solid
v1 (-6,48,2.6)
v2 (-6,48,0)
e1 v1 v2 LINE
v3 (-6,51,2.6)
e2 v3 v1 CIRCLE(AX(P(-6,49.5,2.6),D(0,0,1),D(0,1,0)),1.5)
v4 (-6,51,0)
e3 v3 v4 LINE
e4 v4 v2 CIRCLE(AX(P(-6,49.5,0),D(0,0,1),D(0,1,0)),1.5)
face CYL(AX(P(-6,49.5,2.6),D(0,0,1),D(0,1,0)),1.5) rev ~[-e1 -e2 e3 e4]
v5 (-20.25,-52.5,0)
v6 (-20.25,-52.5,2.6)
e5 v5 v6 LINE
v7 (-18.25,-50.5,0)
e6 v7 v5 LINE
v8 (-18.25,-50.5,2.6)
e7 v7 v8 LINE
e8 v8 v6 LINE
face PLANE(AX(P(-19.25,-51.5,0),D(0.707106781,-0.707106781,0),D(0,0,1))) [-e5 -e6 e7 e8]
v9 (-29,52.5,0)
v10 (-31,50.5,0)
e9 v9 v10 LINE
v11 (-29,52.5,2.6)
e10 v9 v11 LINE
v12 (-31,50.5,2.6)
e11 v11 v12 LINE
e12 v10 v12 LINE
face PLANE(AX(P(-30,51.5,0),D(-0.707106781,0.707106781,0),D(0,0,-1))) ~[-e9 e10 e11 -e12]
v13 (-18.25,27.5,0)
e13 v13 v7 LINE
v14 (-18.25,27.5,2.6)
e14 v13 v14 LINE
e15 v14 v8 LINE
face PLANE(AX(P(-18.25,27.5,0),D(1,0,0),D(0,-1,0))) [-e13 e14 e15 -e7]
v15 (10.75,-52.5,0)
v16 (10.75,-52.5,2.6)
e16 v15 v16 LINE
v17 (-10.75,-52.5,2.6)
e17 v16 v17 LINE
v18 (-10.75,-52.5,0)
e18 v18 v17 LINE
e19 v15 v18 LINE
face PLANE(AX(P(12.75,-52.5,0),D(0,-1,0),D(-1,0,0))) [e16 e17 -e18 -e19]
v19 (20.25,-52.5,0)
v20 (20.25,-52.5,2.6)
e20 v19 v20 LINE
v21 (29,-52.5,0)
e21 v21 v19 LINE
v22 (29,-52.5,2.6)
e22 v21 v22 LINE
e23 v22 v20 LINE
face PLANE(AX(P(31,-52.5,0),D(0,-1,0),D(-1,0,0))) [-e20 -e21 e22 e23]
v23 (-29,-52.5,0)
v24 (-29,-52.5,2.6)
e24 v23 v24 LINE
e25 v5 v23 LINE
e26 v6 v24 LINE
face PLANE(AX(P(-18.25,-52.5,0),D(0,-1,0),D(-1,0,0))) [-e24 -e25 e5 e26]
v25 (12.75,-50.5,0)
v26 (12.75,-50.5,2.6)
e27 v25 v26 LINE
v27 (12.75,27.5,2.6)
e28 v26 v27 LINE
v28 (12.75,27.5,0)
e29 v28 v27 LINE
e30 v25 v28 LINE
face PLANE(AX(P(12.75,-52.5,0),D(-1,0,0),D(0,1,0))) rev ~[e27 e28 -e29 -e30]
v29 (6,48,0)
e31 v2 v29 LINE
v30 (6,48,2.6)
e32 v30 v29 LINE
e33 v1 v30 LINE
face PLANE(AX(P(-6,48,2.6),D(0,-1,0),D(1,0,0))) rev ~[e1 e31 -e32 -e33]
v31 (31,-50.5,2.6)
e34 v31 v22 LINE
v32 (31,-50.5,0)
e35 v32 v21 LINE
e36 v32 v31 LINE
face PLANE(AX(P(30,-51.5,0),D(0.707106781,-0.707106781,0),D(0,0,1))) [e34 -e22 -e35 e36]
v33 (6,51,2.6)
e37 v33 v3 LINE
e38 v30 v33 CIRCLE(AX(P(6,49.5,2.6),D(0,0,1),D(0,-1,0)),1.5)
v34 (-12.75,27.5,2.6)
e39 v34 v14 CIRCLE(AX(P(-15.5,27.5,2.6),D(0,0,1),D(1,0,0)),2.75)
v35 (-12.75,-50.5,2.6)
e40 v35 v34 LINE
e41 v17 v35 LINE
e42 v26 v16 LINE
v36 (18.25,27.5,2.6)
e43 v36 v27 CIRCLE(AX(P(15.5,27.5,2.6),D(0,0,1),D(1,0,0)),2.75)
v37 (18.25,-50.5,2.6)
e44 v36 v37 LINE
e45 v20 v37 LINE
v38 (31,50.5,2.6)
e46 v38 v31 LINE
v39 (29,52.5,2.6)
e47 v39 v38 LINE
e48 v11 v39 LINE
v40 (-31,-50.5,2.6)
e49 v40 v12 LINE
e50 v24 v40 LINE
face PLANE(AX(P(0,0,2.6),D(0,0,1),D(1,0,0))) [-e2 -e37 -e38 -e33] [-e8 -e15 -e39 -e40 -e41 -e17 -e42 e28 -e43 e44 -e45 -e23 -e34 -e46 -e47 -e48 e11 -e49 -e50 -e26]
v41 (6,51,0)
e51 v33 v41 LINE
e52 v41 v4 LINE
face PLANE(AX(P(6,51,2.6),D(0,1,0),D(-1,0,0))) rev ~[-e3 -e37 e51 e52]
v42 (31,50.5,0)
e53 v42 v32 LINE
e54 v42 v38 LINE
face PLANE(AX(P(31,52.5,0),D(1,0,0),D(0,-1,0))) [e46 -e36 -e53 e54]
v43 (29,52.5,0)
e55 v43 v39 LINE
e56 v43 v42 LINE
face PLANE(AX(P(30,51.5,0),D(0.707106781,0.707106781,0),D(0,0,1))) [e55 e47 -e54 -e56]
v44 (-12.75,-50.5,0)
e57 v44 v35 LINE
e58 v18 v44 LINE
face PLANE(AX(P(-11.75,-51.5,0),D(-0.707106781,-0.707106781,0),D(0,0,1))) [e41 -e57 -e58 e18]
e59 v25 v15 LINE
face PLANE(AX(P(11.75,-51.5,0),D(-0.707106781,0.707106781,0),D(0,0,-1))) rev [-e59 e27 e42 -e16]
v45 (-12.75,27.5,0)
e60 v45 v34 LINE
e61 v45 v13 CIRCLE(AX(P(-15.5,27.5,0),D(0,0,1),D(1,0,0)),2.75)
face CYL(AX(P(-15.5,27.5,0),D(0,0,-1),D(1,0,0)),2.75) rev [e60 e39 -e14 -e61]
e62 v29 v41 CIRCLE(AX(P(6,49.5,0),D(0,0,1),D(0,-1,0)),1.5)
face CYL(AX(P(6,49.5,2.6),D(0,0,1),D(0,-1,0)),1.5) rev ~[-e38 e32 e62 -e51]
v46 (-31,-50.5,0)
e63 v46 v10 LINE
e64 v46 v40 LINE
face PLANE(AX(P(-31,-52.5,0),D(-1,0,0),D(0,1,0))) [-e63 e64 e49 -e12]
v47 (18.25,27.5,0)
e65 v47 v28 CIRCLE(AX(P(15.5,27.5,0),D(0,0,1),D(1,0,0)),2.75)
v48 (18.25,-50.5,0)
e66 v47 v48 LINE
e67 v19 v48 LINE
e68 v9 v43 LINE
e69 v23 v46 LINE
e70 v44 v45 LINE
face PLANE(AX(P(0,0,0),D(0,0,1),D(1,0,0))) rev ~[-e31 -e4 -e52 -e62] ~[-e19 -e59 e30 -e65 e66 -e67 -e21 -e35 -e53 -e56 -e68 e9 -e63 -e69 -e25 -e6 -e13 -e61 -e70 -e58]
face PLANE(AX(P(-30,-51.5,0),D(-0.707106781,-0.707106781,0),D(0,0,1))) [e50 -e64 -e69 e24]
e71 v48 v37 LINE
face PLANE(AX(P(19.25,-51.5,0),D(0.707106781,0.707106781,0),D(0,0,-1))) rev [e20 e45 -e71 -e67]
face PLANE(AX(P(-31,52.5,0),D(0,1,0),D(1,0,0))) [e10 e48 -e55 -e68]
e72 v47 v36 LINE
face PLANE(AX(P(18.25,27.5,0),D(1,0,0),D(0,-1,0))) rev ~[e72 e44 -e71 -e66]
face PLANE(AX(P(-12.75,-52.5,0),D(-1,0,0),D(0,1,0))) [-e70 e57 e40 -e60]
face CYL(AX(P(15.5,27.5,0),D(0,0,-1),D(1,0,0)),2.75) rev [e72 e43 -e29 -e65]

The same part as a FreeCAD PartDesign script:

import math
import FreeCAD as App
import Part
import Sketcher
from FreeCAD import Vector
Q = App.Units.Quantity


def edges_at(feature, points):
    """Names of the edges that pass closest to the given points."""
    edges = feature.Shape.Edges
    near = lambda p: min(range(len(edges)), key=lambda i: edges[i].distToShape(Part.Vertex(*p))[0])
    return sorted({f"Edge{near(p) + 1}" for p in points})

doc = App.newDocument("Part")
params = doc.addObject("Spreadsheet::Sheet", "Params")
for row, (alias, value) in enumerate([
    ("sketch1_width", "62 mm"),
    ("sketch1_height", "105 mm"),
    ("sketch1_height2", "80 mm"),
    ("sketch1_radius", "2.75 mm"),
    ("pad1_length", "2.6 mm"),
    ("chamfer_size", "2 mm"),
    ("sketch2_radius", "1.5 mm"),
    ("sketch2_width", "12 mm"),
], start=1):
    params.set(f"A{row}", alias)
    params.set(f"B{row}", "=" + value)
    params.setAlias(f"B{row}", alias)

body = doc.addObject("PartDesign::Body", "Body")

# Sketch on XY plane
sketch1 = body.newObject("Sketcher::SketchObject", "Sketch")
sketch1.AttachmentSupport = (doc.getObject("XY_Plane"), [""])
sketch1.MapMode = "FlatFace"
sketch1.addGeometry([
    Part.LineSegment(Vector(31, 52.5, 0), Vector(-31, 52.5, 0)),  # 0
    Part.LineSegment(Vector(-31, 52.5, 0), Vector(-31, -52.5, 0)),  # 1
    Part.LineSegment(Vector(-31, -52.5, 0), Vector(-18.2, -52.5, 0)),  # 2
    Part.LineSegment(Vector(-18.2, -52.5, 0), Vector(-18.2, 27.5, 0)),  # 3
    Part.ArcOfCircle(Part.Circle(Vector(-15.5, 27.5, 0), Vector(0, 0, 1), 2.8), math.radians(0), math.radians(180)),  # 4
    Part.LineSegment(Vector(-12.8, 27.5, 0), Vector(-12.8, -52.5, 0)),  # 5
    Part.LineSegment(Vector(-12.8, -52.5, 0), Vector(12.8, -52.5, 0)),  # 6
    Part.LineSegment(Vector(12.8, -52.5, 0), Vector(12.8, 27.5, 0)),  # 7
    Part.ArcOfCircle(Part.Circle(Vector(15.5, 27.5, 0), Vector(0, 0, 1), 2.8), math.radians(0), math.radians(180)),  # 8
    Part.LineSegment(Vector(18.2, 27.5, 0), Vector(18.2, -52.5, 0)),  # 9
    Part.LineSegment(Vector(18.2, -52.5, 0), Vector(31, -52.5, 0)),  # 10
    Part.LineSegment(Vector(31, -52.5, 0), Vector(31, 52.5, 0)),  # 11
], False)
sketch1.addConstraint([
    Sketcher.Constraint("Coincident", 0, 2, 1, 1),
    Sketcher.Constraint("Coincident", 1, 2, 2, 1),
    Sketcher.Constraint("Coincident", 2, 2, 3, 1),
    Sketcher.Constraint("Tangent", 3, 2, 4, 2),
    Sketcher.Constraint("Tangent", 4, 1, 5, 1),
    Sketcher.Constraint("Coincident", 5, 2, 6, 1),
    Sketcher.Constraint("Coincident", 6, 2, 7, 1),
    Sketcher.Constraint("Tangent", 7, 2, 8, 2),
    Sketcher.Constraint("Tangent", 8, 1, 9, 1),
    Sketcher.Constraint("Coincident", 9, 2, 10, 1),
    Sketcher.Constraint("Coincident", 10, 2, 11, 1),
    Sketcher.Constraint("Coincident", 11, 2, 0, 1),
    Sketcher.Constraint("Horizontal", 0),
    Sketcher.Constraint("Vertical", 1),
    Sketcher.Constraint("Horizontal", 2),
    Sketcher.Constraint("Vertical", 3),
    Sketcher.Constraint("Vertical", 5),
    Sketcher.Constraint("Horizontal", 6),
    Sketcher.Constraint("Vertical", 7),
    Sketcher.Constraint("Vertical", 9),
    Sketcher.Constraint("Horizontal", 10),
    Sketcher.Constraint("Vertical", 11),
    Sketcher.Constraint("Equal", 4, 8),
    Sketcher.Constraint("Symmetric", 0, 2, 10, 2, -1, 1),
    Sketcher.Constraint("Symmetric", 4, 3, 8, 3, -2),
    Sketcher.Constraint("Horizontal", 2, 2, 5, 2),
    Sketcher.Constraint("Horizontal", 6, 2, 9, 2),
    Sketcher.Constraint("DistanceX", 0, 2, 0, 1, Q("62 mm")),
    Sketcher.Constraint("DistanceY", 1, 2, 1, 1, Q("105 mm")),
    Sketcher.Constraint("DistanceY", 3, 1, 3, 2, Q("80 mm")),
    Sketcher.Constraint("Radius", 4, Q("2.75 mm")),
    Sketcher.Constraint("DistanceX", 4, 3, -1, 1, Q("15.5 mm")),
])
sketch1.setExpression("Constraints[27]", "Params.sketch1_width")
sketch1.setExpression("Constraints[28]", "Params.sketch1_height")
sketch1.setExpression("Constraints[29]", "Params.sketch1_height2")
sketch1.setExpression("Constraints[30]", "Params.sketch1_radius")
pad1 = body.newObject("PartDesign::Pad", "Pad")
pad1.Profile = sketch1
pad1.setExpression("Length", "Params.pad1_length")
doc.recompute()

chamfer = body.newObject("PartDesign::Chamfer", "Chamfer")
chamfer.Base = (pad1, edges_at(pad1, [
    (-18.25, -52.5, 1.3),
    (-12.75, -52.5, 1.3),
    (12.75, -52.5, 1.3),
    (18.25, -52.5, 1.3),
    (31, -52.5, 1.3),
    (-31, -52.5, 1.3),
    (31, 52.5, 1.3),
    (-31, 52.5, 1.3),
]))
chamfer.setExpression("Size", "Params.chamfer_size")

# Sketch on XY plane
sketch2 = body.newObject("Sketcher::SketchObject", "Sketch001")
sketch2.AttachmentSupport = (doc.getObject("XY_Plane"), [""])
sketch2.MapMode = "FlatFace"
sketch2.AttachmentOffset = App.Placement(Vector(0, 0, 2.6), App.Rotation())
sketch2.addGeometry([
    Part.ArcOfCircle(Part.Circle(Vector(6, 49.5, 0), Vector(0, 0, 1), 1.5), math.radians(-90), math.radians(90)),
    Part.LineSegment(Vector(6, 51, 0), Vector(-6, 51, 0)),
    Part.ArcOfCircle(Part.Circle(Vector(-6, 49.5, 0), Vector(0, 0, 1), 1.5), math.radians(90), math.radians(270)),
    Part.LineSegment(Vector(-6, 48, 0), Vector(6, 48, 0)),
], False)
sketch2.addConstraint([
    Sketcher.Constraint("Tangent", 0, 2, 1, 1),
    Sketcher.Constraint("Tangent", 1, 2, 2, 1),
    Sketcher.Constraint("Tangent", 2, 2, 3, 1),
    Sketcher.Constraint("Tangent", 3, 2, 0, 1),
    Sketcher.Constraint("Horizontal", 1),
    Sketcher.Constraint("Horizontal", 3),
    Sketcher.Constraint("Radius", 0, Q("1.5 mm")),
    Sketcher.Constraint("DistanceX", 1, 2, 1, 1, Q("12 mm")),
    Sketcher.Constraint("DistanceX", -1, 1, 0, 3, Q("6 mm")),
    Sketcher.Constraint("DistanceY", -1, 1, 0, 2, Q("51 mm")),
])
sketch2.setExpression("Constraints[6]", "Params.sketch2_radius")
sketch2.setExpression("Constraints[7]", "Params.sketch2_width")
pocket1 = body.newObject("PartDesign::Pocket", "Pocket")
pocket1.Profile = sketch2
pocket1.Type = "ThroughAll"

doc.recompute()
